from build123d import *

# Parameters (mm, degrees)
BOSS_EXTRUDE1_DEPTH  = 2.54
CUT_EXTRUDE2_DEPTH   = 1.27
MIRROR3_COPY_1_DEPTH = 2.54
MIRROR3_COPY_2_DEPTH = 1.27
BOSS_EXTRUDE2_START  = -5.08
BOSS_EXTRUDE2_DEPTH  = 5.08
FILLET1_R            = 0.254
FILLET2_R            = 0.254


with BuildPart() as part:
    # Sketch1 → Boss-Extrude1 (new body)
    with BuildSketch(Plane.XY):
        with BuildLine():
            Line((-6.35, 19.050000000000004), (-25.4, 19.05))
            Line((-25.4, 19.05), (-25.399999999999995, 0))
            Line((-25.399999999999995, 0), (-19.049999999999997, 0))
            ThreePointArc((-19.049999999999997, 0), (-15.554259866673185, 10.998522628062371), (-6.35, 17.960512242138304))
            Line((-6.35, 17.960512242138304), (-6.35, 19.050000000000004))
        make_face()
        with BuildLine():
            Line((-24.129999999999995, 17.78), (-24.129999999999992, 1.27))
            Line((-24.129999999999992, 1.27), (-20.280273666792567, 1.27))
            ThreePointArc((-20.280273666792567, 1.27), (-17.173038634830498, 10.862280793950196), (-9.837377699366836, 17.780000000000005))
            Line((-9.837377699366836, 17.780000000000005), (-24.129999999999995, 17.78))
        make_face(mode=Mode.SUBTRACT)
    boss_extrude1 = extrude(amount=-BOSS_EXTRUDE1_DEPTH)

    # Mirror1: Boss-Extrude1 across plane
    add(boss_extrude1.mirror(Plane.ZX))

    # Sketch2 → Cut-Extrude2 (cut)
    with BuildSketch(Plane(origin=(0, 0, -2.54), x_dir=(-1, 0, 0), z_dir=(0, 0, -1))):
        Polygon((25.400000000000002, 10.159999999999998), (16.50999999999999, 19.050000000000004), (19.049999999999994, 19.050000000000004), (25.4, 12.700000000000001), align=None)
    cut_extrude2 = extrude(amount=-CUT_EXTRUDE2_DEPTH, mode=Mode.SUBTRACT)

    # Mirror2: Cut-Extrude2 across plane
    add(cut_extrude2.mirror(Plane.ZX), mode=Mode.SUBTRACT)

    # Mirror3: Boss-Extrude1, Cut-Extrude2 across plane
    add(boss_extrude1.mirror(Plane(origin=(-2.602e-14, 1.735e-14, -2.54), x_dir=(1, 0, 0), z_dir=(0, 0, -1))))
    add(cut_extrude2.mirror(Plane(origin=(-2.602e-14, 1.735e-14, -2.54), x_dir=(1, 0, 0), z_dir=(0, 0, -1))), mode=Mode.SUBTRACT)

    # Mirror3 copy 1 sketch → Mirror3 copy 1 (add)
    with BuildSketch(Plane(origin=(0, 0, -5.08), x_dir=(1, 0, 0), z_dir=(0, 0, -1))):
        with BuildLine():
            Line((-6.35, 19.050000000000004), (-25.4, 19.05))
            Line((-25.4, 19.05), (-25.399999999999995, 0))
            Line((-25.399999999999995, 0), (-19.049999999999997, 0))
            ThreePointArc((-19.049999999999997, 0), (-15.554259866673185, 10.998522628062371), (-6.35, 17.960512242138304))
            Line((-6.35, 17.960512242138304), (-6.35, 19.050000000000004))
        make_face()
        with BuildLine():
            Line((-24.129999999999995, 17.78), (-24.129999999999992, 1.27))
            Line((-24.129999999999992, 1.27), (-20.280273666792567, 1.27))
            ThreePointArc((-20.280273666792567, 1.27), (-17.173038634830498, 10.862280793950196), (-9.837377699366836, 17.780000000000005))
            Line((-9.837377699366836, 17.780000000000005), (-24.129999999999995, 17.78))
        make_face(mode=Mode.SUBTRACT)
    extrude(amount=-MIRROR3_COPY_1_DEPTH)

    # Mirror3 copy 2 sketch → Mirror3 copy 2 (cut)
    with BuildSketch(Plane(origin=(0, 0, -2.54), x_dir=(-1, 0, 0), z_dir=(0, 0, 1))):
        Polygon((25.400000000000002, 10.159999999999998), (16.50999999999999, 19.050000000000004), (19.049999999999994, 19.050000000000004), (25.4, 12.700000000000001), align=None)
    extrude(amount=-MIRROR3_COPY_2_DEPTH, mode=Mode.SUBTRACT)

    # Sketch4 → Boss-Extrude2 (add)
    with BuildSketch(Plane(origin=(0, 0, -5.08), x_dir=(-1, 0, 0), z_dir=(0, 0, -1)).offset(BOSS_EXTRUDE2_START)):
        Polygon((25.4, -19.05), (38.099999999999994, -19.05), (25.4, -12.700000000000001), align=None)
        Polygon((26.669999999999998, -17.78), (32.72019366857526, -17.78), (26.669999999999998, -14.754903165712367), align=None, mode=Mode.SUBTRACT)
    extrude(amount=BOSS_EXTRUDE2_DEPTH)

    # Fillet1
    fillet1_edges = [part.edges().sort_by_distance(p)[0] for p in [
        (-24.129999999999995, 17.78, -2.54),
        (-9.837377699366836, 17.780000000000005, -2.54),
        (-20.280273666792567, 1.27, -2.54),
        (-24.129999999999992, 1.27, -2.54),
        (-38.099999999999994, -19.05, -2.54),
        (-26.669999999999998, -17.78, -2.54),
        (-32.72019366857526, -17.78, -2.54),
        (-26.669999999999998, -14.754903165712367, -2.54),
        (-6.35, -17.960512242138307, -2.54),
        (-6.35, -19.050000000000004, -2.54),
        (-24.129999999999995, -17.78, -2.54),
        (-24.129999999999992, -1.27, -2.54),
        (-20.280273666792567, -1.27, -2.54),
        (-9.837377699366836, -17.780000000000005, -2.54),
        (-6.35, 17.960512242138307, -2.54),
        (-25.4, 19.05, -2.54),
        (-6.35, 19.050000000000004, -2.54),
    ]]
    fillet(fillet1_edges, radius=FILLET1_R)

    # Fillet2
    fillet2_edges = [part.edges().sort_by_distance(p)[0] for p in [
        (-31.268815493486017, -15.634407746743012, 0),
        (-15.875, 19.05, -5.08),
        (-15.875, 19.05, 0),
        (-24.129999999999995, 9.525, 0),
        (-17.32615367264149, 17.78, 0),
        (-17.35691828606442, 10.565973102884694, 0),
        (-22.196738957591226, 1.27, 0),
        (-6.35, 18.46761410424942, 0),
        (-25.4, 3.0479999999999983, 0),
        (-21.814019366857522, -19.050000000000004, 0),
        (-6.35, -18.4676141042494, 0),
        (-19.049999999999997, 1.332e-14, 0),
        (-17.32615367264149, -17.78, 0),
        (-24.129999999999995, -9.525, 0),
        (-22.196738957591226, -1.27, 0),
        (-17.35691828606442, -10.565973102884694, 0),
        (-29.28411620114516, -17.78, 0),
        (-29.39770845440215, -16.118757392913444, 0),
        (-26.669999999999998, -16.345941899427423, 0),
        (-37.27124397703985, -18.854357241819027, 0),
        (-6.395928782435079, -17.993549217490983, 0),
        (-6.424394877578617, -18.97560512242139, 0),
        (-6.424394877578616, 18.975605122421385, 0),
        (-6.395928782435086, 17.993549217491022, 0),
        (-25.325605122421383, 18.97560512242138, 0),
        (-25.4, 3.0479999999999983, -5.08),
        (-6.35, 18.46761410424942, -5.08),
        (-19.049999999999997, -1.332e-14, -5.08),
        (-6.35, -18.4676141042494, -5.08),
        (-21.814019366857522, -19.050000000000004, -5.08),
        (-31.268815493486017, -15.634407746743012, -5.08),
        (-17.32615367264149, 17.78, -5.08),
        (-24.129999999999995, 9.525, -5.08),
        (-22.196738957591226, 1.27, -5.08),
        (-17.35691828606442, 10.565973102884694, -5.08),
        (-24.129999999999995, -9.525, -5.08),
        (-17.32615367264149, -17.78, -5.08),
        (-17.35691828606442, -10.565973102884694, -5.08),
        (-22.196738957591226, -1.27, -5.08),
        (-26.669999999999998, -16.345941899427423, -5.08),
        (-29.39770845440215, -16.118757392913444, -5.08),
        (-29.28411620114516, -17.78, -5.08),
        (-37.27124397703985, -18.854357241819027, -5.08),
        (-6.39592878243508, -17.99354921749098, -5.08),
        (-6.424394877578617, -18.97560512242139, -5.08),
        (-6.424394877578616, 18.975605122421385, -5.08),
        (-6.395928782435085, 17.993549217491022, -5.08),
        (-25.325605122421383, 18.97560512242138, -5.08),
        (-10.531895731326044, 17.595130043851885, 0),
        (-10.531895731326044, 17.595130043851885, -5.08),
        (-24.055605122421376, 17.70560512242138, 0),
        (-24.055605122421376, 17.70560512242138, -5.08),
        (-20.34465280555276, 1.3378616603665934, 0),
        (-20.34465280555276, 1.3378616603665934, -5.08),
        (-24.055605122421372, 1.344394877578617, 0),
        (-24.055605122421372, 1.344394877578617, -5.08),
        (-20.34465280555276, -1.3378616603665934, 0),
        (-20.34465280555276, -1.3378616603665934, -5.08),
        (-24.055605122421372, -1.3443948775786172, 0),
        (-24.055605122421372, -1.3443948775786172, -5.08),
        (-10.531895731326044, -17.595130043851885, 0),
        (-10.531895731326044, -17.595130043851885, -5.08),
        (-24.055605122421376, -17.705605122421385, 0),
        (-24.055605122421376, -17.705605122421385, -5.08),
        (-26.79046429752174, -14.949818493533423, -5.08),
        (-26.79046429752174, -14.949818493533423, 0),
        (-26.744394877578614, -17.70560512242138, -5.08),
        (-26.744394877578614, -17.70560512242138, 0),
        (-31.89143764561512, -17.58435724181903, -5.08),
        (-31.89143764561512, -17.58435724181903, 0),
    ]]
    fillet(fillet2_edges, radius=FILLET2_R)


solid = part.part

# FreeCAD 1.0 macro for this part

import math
import FreeCAD as App
import Part
import Sketcher

V = App.Vector
Q = App.Units.Quantity


def edges_at(feature, points):
    """Names of the edges that pass closest to the given points."""
    edges = feature.Shape.Edges
    near = lambda p: min(range(len(edges)), key=lambda i: edges[i].distToShape(Part.Vertex(*p))[0])
    return sorted({f"Edge{near(p) + 1}" for p in points})

doc = App.newDocument("Part")
body = doc.addObject("PartDesign::Body", "Body")

sketch1 = body.newObject("Sketcher::SketchObject", "Sketch")
sketch1.AttachmentSupport = (doc.getObject("XY_Plane"), [""])
sketch1.MapMode = "FlatFace"
sketch1.addGeometry([
    Part.LineSegment(V(-6.3, 19.1, 0), V(-25.4, 19.1, 0)),
    Part.LineSegment(V(-25.4, 19.1, 0), V(-25.4, 0, 0)),
    Part.LineSegment(V(-25.4, 0, 0), V(-19.1, 0, 0)),
    Part.ArcOfCircle(Part.Circle(V(0, 0, 0), V(0, 0, 1), 19.1), math.radians(109), math.radians(180)),
    Part.LineSegment(V(-6.3, 18, 0), V(-6.3, 19.1, 0)),
    Part.LineSegment(V(-24.1, 1.3, 0), V(-24.1, 17.8, 0)),
    Part.LineSegment(V(-24.1, 17.8, 0), V(-9.8, 17.8, 0)),
    Part.ArcOfCircle(Part.Circle(V(0, 0, 0), V(0, 0, 1), 20.3), math.radians(119), math.radians(176)),
    Part.LineSegment(V(-20.3, 1.3, 0), V(-24.1, 1.3, 0)),
], False)
sketch1.addConstraint([
    Sketcher.Constraint("Coincident", 0, 2, 1, 1),
    Sketcher.Constraint("Coincident", 1, 2, 2, 1),
    Sketcher.Constraint("Coincident", 2, 2, 3, 2),
    Sketcher.Constraint("Coincident", 3, 1, 4, 1),
    Sketcher.Constraint("Coincident", 4, 2, 0, 1),
    Sketcher.Constraint("Coincident", 5, 2, 6, 1),
    Sketcher.Constraint("Coincident", 6, 2, 7, 1),
    Sketcher.Constraint("Coincident", 7, 2, 8, 1),
    Sketcher.Constraint("Coincident", 8, 2, 5, 1),
    Sketcher.Constraint("Horizontal", 0),
    Sketcher.Constraint("Vertical", 1),
    Sketcher.Constraint("Horizontal", 2),
    Sketcher.Constraint("Vertical", 4),
    Sketcher.Constraint("Vertical", 5),
    Sketcher.Constraint("Horizontal", 6),
    Sketcher.Constraint("Horizontal", 8),
    Sketcher.Constraint("Coincident", 3, 3, -1, 1),
    Sketcher.Constraint("Coincident", 7, 3, -1, 1),
    Sketcher.Constraint("PointOnObject", 1, 2, -1),
    Sketcher.Constraint("Equal", 0, 1),
    Sketcher.Constraint("Radius", 7, Q("0.8 in")),
    Sketcher.Constraint("Radius", 3, Q("0.75 in")),
    Sketcher.Constraint("DistanceX", 0, 2, -1, 1, Q("1 in")),
    Sketcher.Constraint("DistanceX", 0, 2, 0, 1, Q("0.75 in")),
    Sketcher.Constraint("DistanceY", 5, 1, 5, 2, Q("0.65 in")),
    Sketcher.Constraint("DistanceY", -1, 1, 5, 2, Q("0.7 in")),
    Sketcher.Constraint("DistanceX", 5, 2, 3, 1, Q("0.7 in")),
])
pad1 = body.newObject("PartDesign::Pad", "Pad")
pad1.Profile = sketch1
pad1.Length = Q("0.1 in")
pad1.Reversed = True
doc.recompute()

mirrored = body.newObject("PartDesign::Mirrored", "Mirrored")
mirrored.Originals = [pad1]
mirrored.MirrorPlane = (doc.getObject("XZ_Plane"), [""])
body.Tip = mirrored

sketch2 = body.newObject("Sketcher::SketchObject", "Sketch001")
sketch2.AttachmentSupport = (doc.getObject("XY_Plane"), [""])
sketch2.MapMode = "FlatFace"
sketch2.AttachmentOffset = App.Placement(V(0, 0, -0.1 * 25.4), App.Rotation())
sketch2.addGeometry([
    Part.LineSegment(V(-16.5, 19.1, 0), V(-25.4, 10.2, 0)),
    Part.LineSegment(V(-25.4, 10.2, 0), V(-25.4, 12.7, 0)),
    Part.LineSegment(V(-25.4, 12.7, 0), V(-19.1, 19.1, 0)),
    Part.LineSegment(V(-19.1, 19.1, 0), V(-16.5, 19.1, 0)),
], False)
sketch2.addConstraint([
    Sketcher.Constraint("Coincident", 0, 2, 1, 1),
    Sketcher.Constraint("Coincident", 1, 2, 2, 1),
    Sketcher.Constraint("Coincident", 2, 2, 3, 1),
    Sketcher.Constraint("Coincident", 3, 2, 0, 1),
    Sketcher.Constraint("Vertical", 1),
    Sketcher.Constraint("Horizontal", 3),
    Sketcher.Constraint("Parallel", 0, 2),
    Sketcher.Constraint("Equal", 3, 1),
    Sketcher.Constraint("DistanceX", 3, 1, 3, 2, Q("0.1 in")),
    Sketcher.Constraint("DistanceX", 0, 2, -1, 1, Q("1 in")),
    Sketcher.Constraint("DistanceY", -1, 1, 0, 2, Q("0.4 in")),
    Sketcher.Constraint("DistanceX", 2, 2, -1, 1, Q("0.75 in")),
])
pocket1 = body.newObject("PartDesign::Pocket", "Pocket")
pocket1.Profile = sketch2
pocket1.Length = Q("0.05 in")
pocket1.Reversed = True
doc.recompute()

mirrored2 = body.newObject("PartDesign::Mirrored", "Mirrored001")
mirrored2.Originals = [pocket1]
mirrored2.MirrorPlane = (doc.getObject("XZ_Plane"), [""])
body.Tip = mirrored2
doc.recompute()

datumplane = body.newObject("PartDesign::Plane", "DatumPlane")
datumplane.AttachmentSupport = (doc.getObject("XY_Plane"), [""])
datumplane.MapMode = "FlatFace"
datumplane.AttachmentOffset = App.Placement(V(0, 0, -0.1 * 25.4), App.Rotation())
mirrored3 = body.newObject("PartDesign::Mirrored", "Mirrored002")
mirrored3.Originals = [pad1, pocket1]
mirrored3.MirrorPlane = (datumplane, [""])
body.Tip = mirrored3

sketch3 = body.newObject("Sketcher::SketchObject", "Sketch002")
sketch3.AttachmentSupport = (doc.getObject("XY_Plane"), [""])
sketch3.MapMode = "FlatFace"
sketch3.AttachmentOffset = App.Placement(V(0, 0, -0.2 * 25.4), App.Rotation())
sketch3.addGeometry([
    Part.LineSegment(V(-6.3, -19.1, 0), V(-25.4, -19.1, 0)),
    Part.LineSegment(V(-25.4, -19.1, 0), V(-25.4, 0, 0)),
    Part.LineSegment(V(-25.4, 0, 0), V(-19.1, 0, 0)),
    Part.ArcOfCircle(Part.Circle(V(0, 0, 0), V(0, 0, 1), 19.1), math.radians(180), math.radians(251)),
    Part.LineSegment(V(-6.3, -18, 0), V(-6.3, -19.1, 0)),
    Part.LineSegment(V(-24.1, -1.3, 0), V(-24.1, -17.8, 0)),
    Part.LineSegment(V(-24.1, -17.8, 0), V(-9.8, -17.8, 0)),
    Part.ArcOfCircle(Part.Circle(V(0, 0, 0), V(0, 0, 1), 20.3), math.radians(-176), math.radians(-119)),
    Part.LineSegment(V(-20.3, -1.3, 0), V(-24.1, -1.3, 0)),
], False)
sketch3.addConstraint([
    Sketcher.Constraint("Coincident", 0, 2, 1, 1),
    Sketcher.Constraint("Coincident", 1, 2, 2, 1),
    Sketcher.Constraint("Coincident", 2, 2, 3, 1),
    Sketcher.Constraint("Coincident", 3, 2, 4, 1),
    Sketcher.Constraint("Coincident", 4, 2, 0, 1),
    Sketcher.Constraint("Coincident", 5, 2, 6, 1),
    Sketcher.Constraint("Coincident", 6, 2, 7, 2),
    Sketcher.Constraint("Coincident", 7, 1, 8, 1),
    Sketcher.Constraint("Coincident", 8, 2, 5, 1),
    Sketcher.Constraint("Horizontal", 0),
    Sketcher.Constraint("Vertical", 1),
    Sketcher.Constraint("Horizontal", 2),
    Sketcher.Constraint("Vertical", 4),
    Sketcher.Constraint("Vertical", 5),
    Sketcher.Constraint("Horizontal", 6),
    Sketcher.Constraint("Horizontal", 8),
    Sketcher.Constraint("Coincident", 3, 3, -1, 1),
    Sketcher.Constraint("Coincident", 7, 3, -1, 1),
    Sketcher.Constraint("PointOnObject", 1, 2, -1),
    Sketcher.Constraint("Equal", 0, 1),
    Sketcher.Constraint("Radius", 7, Q("0.8 in")),
    Sketcher.Constraint("Radius", 3, Q("0.75 in")),
    Sketcher.Constraint("DistanceX", 0, 2, -1, 1, Q("1 in")),
    Sketcher.Constraint("DistanceX", 0, 2, 0, 1, Q("0.75 in")),
    Sketcher.Constraint("DistanceY", 5, 2, 5, 1, Q("0.65 in")),
    Sketcher.Constraint("DistanceY", 5, 2, -1, 1, Q("0.7 in")),
    Sketcher.Constraint("DistanceX", 5, 2, 3, 2, Q("0.7 in")),
])
pad2 = body.newObject("PartDesign::Pad", "Pad001")
pad2.Profile = sketch3
pad2.Length = Q("0.1 in")

sketch4 = body.newObject("Sketcher::SketchObject", "Sketch003")
sketch4.AttachmentSupport = (doc.getObject("XY_Plane"), [""])
sketch4.MapMode = "FlatFace"
sketch4.AttachmentOffset = App.Placement(V(0, 0, -0.1 * 25.4), App.Rotation())
sketch4.addGeometry([
    Part.LineSegment(V(-16.5, -19.1, 0), V(-25.4, -10.2, 0)),
    Part.LineSegment(V(-25.4, -10.2, 0), V(-25.4, -12.7, 0)),
    Part.LineSegment(V(-25.4, -12.7, 0), V(-19.1, -19.1, 0)),
    Part.LineSegment(V(-19.1, -19.1, 0), V(-16.5, -19.1, 0)),
], False)
sketch4.addConstraint([
    Sketcher.Constraint("Coincident", 0, 2, 1, 1),
    Sketcher.Constraint("Coincident", 1, 2, 2, 1),
    Sketcher.Constraint("Coincident", 2, 2, 3, 1),
    Sketcher.Constraint("Coincident", 3, 2, 0, 1),
    Sketcher.Constraint("Vertical", 1),
    Sketcher.Constraint("Horizontal", 3),
    Sketcher.Constraint("Parallel", 0, 2),
    Sketcher.Constraint("Equal", 3, 1),
    Sketcher.Constraint("DistanceX", 3, 1, 3, 2, Q("0.1 in")),
    Sketcher.Constraint("DistanceX", 0, 2, -1, 1, Q("1 in")),
    Sketcher.Constraint("DistanceY", 0, 2, -1, 1, Q("0.4 in")),
    Sketcher.Constraint("DistanceX", 2, 2, -1, 1, Q("0.75 in")),
])
pocket2 = body.newObject("PartDesign::Pocket", "Pocket001")
pocket2.Profile = sketch4
pocket2.Length = Q("0.05 in")

sketch5 = body.newObject("Sketcher::SketchObject", "Sketch004")
sketch5.AttachmentSupport = (doc.getObject("XY_Plane"), [""])
sketch5.MapMode = "FlatFace"
sketch5.addGeometry([
    Part.LineSegment(V(-25.4, -19.1, 0), V(-38.1, -19.1, 0)),
    Part.LineSegment(V(-38.1, -19.1, 0), V(-25.4, -12.7, 0)),
    Part.LineSegment(V(-25.4, -12.7, 0), V(-25.4, -19.1, 0)),
    Part.LineSegment(V(-32.7, -17.8, 0), V(-26.7, -17.8, 0)),
    Part.LineSegment(V(-26.7, -17.8, 0), V(-26.7, -14.8, 0)),
    Part.LineSegment(V(-26.7, -14.8, 0), V(-32.7, -17.8, 0)),
], False)
sketch5.addConstraint([
    Sketcher.Constraint("Coincident", 0, 2, 1, 1),
    Sketcher.Constraint("Coincident", 1, 2, 2, 1),
    Sketcher.Constraint("Coincident", 2, 2, 0, 1),
    Sketcher.Constraint("Coincident", 3, 2, 4, 1),
    Sketcher.Constraint("Coincident", 4, 2, 5, 1),
    Sketcher.Constraint("Coincident", 5, 2, 3, 1),
    Sketcher.Constraint("Horizontal", 0),
    Sketcher.Constraint("Vertical", 2),
    Sketcher.Constraint("Horizontal", 3),
    Sketcher.Constraint("Vertical", 4),
    Sketcher.Constraint("Parallel", 1, 5),
    Sketcher.Constraint("DistanceX", 0, 2, 0, 1, Q("0.5 in")),
    Sketcher.Constraint("DistanceX", 1, 2, -1, 1, Q("1 in")),
    Sketcher.Constraint("DistanceY", 2, 2, 2, 1, Q("0.25 in")),
    Sketcher.Constraint("DistanceY", 1, 2, -1, 1, Q("0.5 in")),
    Sketcher.Constraint("DistanceY", 3, 2, -1, 1, Q("0.7 in")),
    Sketcher.Constraint("DistanceX", 3, 2, -1, 1, Q("1.05 in")),
    Sketcher.Constraint("DistanceX", 3, 1, 3, 2, Q("6.050194 mm")),
])
pad3 = body.newObject("PartDesign::Pad", "Pad002")
pad3.Profile = sketch5
pad3.Length = Q("0.2 in")
pad3.Reversed = True
doc.recompute()

fillet = body.newObject("PartDesign::Fillet", "Fillet")
fillet.Base = (pad3, edges_at(pad3, [
    (-24.13, 17.78, -2.54),
    (-9.837, 17.78, -2.54),
    (-20.28, 1.27, -2.54),
    (-24.13, 1.27, -2.54),
    (-38.1, -19.05, -2.54),
    (-26.67, -17.78, -2.54),
    (-32.72, -17.78, -2.54),
    (-26.67, -14.755, -2.54),
    (-6.35, -17.961, -2.54),
    (-6.35, -19.05, -2.54),
    (-24.13, -17.78, -2.54),
    (-24.13, -1.27, -2.54),
    (-20.28, -1.27, -2.54),
    (-9.837, -17.78, -2.54),
    (-6.35, 17.961, -2.54),
    (-25.4, 19.05, -2.54),
    (-6.35, 19.05, -2.54),
]))
fillet.Radius = Q("0.01 in")
doc.recompute()

fillet2 = body.newObject("PartDesign::Fillet", "Fillet001")
fillet2.Base = (fillet, edges_at(fillet, [
    (-31.269, -15.634, 0),
    (-15.875, 19.05, -5.08),
    (-15.875, 19.05, 0),
    (-24.13, 9.525, 0),
    (-17.326, 17.78, 0),
    (-17.357, 10.566, 0),
    (-22.197, 1.27, 0),
    (-6.35, 18.468, 0),
    (-25.4, 3.048, 0),
    (-21.814, -19.05, 0),
    (-6.35, -18.468, 0),
    (-19.05, 0, 0),
    (-17.326, -17.78, 0),
    (-24.13, -9.525, 0),
    (-22.197, -1.27, 0),
    (-17.357, -10.566, 0),
    (-29.284, -17.78, 0),
    (-29.398, -16.119, 0),
    (-26.67, -16.346, 0),
    (-37.271, -18.854, 0),
    (-6.396, -17.994, 0),
    (-6.424, -18.976, 0),
    (-6.424, 18.976, 0),
    (-6.396, 17.994, 0),
    (-25.326, 18.976, 0),
    (-25.4, 3.048, -5.08),
    (-6.35, 18.468, -5.08),
    (-19.05, 0, -5.08),
    (-6.35, -18.468, -5.08),
    (-21.814, -19.05, -5.08),
    (-31.269, -15.634, -5.08),
    (-17.326, 17.78, -5.08),
    (-24.13, 9.525, -5.08),
    (-22.197, 1.27, -5.08),
    (-17.357, 10.566, -5.08),
    (-24.13, -9.525, -5.08),
    (-17.326, -17.78, -5.08),
    (-17.357, -10.566, -5.08),
    (-22.197, -1.27, -5.08),
    (-26.67, -16.346, -5.08),
    (-29.398, -16.119, -5.08),
    (-29.284, -17.78, -5.08),
    (-37.271, -18.854, -5.08),
    (-6.396, -17.994, -5.08),
    (-6.424, -18.976, -5.08),
    (-6.424, 18.976, -5.08),
    (-6.396, 17.994, -5.08),
    (-25.326, 18.976, -5.08),
    (-10.532, 17.595, 0),
    (-10.532, 17.595, -5.08),
    (-24.056, 17.706, 0),
    (-24.056, 17.706, -5.08),
    (-20.345, 1.338, 0),
    (-20.345, 1.338, -5.08),
    (-24.056, 1.344, 0),
    (-24.056, 1.344, -5.08),
    (-20.345, -1.338, 0),
    (-20.345, -1.338, -5.08),
    (-24.056, -1.344, 0),
    (-24.056, -1.344, -5.08),
    (-10.532, -17.595, 0),
    (-10.532, -17.595, -5.08),
    (-24.056, -17.706, 0),
    (-24.056, -17.706, -5.08),
    (-26.79, -14.95, -5.08),
    (-26.79, -14.95, 0),
    (-26.744, -17.706, -5.08),
    (-26.744, -17.706, 0),
    (-31.891, -17.584, -5.08),
    (-31.891, -17.584, 0),
]))
fillet2.Radius = Q("0.01 in")

doc.recompute()
